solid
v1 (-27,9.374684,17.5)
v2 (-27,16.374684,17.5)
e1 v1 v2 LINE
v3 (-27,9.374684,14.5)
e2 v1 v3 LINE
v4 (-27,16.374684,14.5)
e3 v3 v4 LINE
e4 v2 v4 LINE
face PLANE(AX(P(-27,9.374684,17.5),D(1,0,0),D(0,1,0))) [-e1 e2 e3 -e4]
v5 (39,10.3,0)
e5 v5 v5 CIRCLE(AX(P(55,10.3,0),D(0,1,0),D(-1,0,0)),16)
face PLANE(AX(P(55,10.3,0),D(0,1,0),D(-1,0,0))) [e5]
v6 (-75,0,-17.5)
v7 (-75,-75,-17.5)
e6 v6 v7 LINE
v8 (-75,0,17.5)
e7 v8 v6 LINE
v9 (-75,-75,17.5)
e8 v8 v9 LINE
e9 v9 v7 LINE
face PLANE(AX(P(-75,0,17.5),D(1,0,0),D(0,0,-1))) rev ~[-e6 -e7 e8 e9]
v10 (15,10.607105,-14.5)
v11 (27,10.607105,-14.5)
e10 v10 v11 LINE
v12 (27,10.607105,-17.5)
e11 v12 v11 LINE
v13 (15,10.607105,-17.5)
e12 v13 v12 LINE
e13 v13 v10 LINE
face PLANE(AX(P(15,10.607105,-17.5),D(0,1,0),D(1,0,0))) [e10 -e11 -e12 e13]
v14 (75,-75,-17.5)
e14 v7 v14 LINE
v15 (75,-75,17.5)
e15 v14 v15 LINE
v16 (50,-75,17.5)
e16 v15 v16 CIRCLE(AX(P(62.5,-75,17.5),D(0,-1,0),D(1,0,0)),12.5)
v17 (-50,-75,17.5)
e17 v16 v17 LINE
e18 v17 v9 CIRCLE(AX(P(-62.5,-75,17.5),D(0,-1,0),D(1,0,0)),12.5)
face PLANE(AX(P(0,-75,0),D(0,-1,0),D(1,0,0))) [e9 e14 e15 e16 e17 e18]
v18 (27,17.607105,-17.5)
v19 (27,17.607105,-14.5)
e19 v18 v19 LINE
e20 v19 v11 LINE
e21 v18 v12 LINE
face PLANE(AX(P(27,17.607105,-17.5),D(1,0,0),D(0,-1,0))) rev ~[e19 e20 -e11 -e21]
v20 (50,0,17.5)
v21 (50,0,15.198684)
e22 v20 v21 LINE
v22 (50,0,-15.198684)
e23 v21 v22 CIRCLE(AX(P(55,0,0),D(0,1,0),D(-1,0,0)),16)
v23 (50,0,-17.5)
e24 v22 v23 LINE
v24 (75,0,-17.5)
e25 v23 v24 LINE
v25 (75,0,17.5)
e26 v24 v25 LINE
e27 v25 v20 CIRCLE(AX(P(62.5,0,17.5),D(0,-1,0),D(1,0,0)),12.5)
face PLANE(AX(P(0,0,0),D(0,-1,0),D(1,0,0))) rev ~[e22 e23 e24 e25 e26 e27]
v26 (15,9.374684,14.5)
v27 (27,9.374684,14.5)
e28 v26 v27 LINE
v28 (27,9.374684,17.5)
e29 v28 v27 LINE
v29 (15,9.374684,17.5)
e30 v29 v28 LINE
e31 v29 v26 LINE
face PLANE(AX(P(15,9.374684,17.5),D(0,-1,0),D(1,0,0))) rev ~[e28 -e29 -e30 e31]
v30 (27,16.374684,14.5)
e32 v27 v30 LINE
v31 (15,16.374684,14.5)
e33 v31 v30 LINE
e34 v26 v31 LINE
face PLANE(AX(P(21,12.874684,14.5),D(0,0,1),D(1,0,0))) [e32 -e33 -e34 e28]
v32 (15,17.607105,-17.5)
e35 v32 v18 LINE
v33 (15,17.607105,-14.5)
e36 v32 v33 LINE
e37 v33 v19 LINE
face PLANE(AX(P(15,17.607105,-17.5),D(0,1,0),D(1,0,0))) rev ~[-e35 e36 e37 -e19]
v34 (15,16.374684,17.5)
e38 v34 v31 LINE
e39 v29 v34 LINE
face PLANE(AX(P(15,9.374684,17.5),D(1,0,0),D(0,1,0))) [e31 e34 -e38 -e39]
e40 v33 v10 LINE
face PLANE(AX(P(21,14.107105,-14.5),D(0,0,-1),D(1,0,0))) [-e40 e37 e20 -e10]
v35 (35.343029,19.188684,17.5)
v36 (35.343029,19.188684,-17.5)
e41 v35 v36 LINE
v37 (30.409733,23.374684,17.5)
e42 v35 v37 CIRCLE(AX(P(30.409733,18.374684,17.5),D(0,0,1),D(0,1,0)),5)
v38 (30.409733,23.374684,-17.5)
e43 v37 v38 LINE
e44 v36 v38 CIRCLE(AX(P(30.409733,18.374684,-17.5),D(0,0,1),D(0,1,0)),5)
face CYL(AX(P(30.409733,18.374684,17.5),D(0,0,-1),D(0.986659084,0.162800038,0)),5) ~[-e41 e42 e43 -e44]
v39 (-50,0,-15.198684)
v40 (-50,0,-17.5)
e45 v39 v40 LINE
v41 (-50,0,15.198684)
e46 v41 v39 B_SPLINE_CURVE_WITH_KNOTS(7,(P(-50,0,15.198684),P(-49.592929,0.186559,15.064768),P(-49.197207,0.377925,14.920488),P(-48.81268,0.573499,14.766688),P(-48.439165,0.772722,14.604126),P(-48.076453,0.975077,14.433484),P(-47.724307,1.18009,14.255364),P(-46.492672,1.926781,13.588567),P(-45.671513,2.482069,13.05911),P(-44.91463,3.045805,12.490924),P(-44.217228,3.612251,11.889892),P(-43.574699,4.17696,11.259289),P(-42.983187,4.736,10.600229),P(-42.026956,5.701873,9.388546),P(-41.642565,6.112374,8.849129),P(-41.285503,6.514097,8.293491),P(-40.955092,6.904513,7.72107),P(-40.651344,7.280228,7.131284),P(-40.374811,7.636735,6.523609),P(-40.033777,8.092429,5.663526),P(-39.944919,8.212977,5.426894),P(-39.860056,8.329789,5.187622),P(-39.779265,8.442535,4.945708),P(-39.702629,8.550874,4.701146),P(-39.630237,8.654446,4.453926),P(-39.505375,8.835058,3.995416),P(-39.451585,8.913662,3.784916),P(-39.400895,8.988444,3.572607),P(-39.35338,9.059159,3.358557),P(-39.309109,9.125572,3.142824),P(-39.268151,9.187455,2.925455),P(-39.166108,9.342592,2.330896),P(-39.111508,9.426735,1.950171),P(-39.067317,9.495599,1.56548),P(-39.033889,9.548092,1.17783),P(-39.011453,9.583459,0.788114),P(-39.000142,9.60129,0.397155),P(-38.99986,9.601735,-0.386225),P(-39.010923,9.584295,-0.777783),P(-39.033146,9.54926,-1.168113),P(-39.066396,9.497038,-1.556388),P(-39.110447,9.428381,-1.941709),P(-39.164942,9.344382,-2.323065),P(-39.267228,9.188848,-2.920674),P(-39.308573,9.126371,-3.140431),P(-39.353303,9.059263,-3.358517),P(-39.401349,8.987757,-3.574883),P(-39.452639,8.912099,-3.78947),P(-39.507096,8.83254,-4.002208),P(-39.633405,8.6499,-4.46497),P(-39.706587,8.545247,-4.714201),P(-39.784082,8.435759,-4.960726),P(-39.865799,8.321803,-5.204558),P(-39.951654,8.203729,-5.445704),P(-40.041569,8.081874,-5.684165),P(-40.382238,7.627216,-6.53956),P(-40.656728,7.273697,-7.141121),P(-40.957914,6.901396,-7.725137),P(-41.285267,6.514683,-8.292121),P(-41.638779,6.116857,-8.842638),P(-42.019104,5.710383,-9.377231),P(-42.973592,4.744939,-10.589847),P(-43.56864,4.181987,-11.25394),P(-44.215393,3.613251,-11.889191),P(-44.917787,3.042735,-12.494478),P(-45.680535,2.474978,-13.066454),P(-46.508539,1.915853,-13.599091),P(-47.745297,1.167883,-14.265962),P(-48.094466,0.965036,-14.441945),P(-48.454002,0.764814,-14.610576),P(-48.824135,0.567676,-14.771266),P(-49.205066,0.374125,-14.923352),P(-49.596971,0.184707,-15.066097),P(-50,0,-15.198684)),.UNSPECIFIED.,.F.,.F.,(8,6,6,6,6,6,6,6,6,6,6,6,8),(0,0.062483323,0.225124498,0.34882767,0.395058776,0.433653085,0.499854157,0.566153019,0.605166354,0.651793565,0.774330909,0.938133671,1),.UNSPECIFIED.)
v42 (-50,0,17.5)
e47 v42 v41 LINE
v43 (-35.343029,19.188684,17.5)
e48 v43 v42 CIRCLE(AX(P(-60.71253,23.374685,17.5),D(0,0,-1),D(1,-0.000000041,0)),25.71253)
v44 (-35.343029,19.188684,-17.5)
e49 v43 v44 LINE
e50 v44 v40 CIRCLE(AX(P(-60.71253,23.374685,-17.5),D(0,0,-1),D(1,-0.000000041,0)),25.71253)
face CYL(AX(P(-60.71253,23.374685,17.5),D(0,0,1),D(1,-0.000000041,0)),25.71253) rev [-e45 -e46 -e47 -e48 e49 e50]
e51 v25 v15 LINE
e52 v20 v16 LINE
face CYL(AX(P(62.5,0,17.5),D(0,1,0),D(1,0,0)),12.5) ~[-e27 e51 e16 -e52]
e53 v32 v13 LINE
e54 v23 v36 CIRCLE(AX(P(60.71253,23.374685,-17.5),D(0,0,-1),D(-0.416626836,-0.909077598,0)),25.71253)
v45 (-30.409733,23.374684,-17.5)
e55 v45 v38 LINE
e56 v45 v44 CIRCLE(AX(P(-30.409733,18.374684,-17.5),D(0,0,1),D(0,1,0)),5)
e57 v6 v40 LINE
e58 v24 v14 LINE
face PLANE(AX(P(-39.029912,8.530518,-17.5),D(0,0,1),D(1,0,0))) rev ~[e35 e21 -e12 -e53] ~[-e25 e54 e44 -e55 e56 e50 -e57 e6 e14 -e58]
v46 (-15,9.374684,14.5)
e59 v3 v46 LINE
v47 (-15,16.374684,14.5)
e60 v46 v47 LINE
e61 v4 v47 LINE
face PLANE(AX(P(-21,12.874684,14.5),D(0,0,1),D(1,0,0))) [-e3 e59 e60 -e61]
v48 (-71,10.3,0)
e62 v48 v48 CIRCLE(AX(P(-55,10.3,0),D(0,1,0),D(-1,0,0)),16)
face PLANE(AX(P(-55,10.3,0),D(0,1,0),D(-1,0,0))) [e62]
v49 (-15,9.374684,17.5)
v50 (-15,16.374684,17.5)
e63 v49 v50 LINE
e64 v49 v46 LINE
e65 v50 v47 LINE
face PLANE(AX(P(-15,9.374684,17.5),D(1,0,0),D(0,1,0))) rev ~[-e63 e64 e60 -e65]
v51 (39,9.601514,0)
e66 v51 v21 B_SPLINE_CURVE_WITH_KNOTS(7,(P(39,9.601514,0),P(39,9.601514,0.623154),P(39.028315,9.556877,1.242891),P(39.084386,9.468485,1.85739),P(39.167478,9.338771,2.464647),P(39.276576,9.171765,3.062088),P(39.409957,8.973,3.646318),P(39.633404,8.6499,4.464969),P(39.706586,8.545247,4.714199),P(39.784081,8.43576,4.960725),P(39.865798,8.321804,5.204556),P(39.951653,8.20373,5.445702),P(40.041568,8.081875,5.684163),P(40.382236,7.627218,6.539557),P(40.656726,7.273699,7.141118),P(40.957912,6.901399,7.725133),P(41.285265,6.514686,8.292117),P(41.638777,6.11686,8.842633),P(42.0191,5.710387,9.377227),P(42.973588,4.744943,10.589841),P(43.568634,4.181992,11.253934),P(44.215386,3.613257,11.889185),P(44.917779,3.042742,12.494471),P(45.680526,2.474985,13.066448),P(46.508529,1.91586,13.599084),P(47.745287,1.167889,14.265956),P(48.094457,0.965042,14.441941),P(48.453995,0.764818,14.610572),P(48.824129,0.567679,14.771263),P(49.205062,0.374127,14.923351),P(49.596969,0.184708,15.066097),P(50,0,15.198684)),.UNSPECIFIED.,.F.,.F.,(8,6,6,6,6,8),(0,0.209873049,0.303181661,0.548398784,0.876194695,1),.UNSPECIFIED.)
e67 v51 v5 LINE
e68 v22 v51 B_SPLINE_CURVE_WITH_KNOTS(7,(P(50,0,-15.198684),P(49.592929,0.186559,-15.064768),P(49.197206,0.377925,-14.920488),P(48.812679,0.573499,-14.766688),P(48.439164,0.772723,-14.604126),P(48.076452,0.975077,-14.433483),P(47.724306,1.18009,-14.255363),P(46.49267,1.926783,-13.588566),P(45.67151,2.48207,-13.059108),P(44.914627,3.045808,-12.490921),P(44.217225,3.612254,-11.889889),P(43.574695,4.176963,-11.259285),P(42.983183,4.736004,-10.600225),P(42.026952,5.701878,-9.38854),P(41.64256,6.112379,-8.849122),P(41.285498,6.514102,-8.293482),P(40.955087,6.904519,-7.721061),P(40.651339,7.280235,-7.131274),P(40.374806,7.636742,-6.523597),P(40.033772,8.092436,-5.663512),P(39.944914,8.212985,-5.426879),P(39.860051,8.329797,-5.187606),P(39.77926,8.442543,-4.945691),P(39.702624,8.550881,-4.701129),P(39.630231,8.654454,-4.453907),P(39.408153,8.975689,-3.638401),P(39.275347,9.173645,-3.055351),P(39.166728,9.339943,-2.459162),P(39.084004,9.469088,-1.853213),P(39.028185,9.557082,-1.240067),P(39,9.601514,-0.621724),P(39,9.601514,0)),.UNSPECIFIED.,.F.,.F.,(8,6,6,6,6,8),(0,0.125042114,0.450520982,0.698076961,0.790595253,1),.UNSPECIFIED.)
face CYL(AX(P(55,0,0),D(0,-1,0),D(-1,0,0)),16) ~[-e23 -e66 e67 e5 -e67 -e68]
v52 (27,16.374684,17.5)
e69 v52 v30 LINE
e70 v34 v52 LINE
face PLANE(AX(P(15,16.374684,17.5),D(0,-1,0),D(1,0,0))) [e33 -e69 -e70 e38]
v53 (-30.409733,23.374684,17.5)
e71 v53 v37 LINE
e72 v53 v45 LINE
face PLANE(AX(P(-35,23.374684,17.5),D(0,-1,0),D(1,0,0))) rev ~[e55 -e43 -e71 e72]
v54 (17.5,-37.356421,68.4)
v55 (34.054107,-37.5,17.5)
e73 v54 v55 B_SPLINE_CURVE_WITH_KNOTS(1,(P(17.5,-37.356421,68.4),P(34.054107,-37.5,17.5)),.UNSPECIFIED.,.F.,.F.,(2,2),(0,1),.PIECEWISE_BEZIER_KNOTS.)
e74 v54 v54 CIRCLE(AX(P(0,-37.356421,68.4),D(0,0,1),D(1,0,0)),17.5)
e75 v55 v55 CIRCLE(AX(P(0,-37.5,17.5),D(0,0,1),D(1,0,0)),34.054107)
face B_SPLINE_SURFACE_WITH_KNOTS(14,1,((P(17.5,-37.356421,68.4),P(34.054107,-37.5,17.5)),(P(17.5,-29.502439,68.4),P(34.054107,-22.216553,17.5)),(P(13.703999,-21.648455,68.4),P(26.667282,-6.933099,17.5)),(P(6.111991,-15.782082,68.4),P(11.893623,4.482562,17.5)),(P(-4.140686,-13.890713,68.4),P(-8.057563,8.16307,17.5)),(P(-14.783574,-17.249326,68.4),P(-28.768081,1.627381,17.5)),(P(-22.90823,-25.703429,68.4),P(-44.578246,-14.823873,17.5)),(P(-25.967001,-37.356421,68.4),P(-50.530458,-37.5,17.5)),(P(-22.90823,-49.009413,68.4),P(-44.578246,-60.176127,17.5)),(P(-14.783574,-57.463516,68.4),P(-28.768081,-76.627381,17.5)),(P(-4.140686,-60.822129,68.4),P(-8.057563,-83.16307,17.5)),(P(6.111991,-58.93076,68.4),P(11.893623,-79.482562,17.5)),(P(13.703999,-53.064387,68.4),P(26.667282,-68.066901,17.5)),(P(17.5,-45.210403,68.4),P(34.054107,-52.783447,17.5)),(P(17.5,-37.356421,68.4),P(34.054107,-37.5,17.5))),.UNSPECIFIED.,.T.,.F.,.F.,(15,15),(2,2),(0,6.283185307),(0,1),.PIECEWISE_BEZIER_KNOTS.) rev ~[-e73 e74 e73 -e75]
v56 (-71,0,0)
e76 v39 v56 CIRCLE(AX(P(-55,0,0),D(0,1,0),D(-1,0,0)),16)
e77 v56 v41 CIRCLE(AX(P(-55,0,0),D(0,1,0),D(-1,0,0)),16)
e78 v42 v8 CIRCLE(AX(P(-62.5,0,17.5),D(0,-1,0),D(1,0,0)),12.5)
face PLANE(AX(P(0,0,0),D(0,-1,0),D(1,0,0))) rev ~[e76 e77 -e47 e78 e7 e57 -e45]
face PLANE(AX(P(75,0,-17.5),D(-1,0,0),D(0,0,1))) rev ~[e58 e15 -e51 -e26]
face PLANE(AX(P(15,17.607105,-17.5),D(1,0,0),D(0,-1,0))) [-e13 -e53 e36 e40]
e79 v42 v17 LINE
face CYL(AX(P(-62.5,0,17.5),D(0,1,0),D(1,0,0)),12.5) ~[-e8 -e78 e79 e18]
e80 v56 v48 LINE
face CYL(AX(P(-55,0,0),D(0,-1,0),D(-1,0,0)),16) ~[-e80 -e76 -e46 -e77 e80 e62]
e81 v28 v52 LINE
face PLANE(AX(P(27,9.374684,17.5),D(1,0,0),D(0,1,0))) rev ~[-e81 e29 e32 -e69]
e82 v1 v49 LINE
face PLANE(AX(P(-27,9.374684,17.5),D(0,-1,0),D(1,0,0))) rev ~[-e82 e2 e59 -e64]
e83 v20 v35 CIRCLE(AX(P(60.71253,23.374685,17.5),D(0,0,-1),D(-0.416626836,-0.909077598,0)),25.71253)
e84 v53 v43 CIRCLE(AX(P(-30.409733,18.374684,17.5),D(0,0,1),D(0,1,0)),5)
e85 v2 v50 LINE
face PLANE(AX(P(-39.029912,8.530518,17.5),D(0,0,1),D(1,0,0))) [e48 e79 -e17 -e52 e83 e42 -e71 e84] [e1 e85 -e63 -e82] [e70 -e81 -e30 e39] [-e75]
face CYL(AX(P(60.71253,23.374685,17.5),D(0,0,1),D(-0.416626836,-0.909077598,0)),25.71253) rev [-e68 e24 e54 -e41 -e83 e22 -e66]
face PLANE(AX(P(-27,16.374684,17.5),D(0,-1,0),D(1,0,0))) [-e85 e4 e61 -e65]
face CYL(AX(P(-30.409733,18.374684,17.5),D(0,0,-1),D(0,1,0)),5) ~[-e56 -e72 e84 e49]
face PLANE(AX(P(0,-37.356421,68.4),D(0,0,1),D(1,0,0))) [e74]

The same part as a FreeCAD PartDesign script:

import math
import FreeCAD as App
import Part
import Sketcher

V = App.Vector


def edges_at(feature, points):
    """Names of the edges that pass closest to the given points."""
    edges = feature.Shape.Edges
    near = lambda p: min(range(len(edges)), key=lambda i: edges[i].distToShape(Part.Vertex(*p))[0])
    return sorted({f"Edge{near(p) + 1}" for p in points})


def add_polygon(sketch, points):
    """Adds a closed chain of lines whose ends are joined by coincident constraints."""
    first, n = sketch.GeometryCount, len(points)
    for a, b in zip(points, points[1:] + points[:1]):
        sketch.addGeometry(Part.LineSegment(App.Vector(*a, 0), App.Vector(*b, 0)), False)
    for i in range(n):
        sketch.addConstraint(Sketcher.Constraint("Coincident", first + i, 2, first + (i + 1) % n, 1))

doc = App.newDocument("Part")
body = doc.addObject("PartDesign::Body", "Body")

sketch1 = body.newObject("Sketcher::SketchObject", "Sketch")
sketch1.AttachmentSupport = (doc.getObject("XZ_Plane"), [""])
sketch1.MapMode = "FlatFace"
sketch1.addGeometry(Part.LineSegment(V(75, -17.5, 0), V(75, 17.5, 0)), False)
sketch1.addGeometry(Part.ArcOfCircle(Part.Circle(V(62.5, 17.5, 0), V(0, 0, 1), 12.5), math.radians(0), math.radians(180)), False)
sketch1.addGeometry(Part.LineSegment(V(50, 17.5, 0), V(-50, 17.5, 0)), False)
sketch1.addGeometry(Part.ArcOfCircle(Part.Circle(V(-62.5, 17.5, 0), V(0, 0, 1), 12.5), math.radians(0), math.radians(180)), False)
sketch1.addGeometry(Part.LineSegment(V(-75, 17.5, 0), V(-75, -17.5, 0)), False)
sketch1.addGeometry(Part.LineSegment(V(-75, -17.5, 0), V(75, -17.5, 0)), False)
sketch1.addConstraint(Sketcher.Constraint("Tangent", 0, 2, 1, 1))
sketch1.addConstraint(Sketcher.Constraint("Coincident", 1, 2, 2, 1))
sketch1.addConstraint(Sketcher.Constraint("Coincident", 2, 2, 3, 1))
sketch1.addConstraint(Sketcher.Constraint("Tangent", 3, 2, 4, 1))
sketch1.addConstraint(Sketcher.Constraint("Coincident", 4, 2, 5, 1))
sketch1.addConstraint(Sketcher.Constraint("Coincident", 5, 2, 0, 1))
sketch1.addConstraint(Sketcher.Constraint("Vertical", 0))
sketch1.addConstraint(Sketcher.Constraint("Horizontal", 2))
sketch1.addConstraint(Sketcher.Constraint("Vertical", 4))
sketch1.addConstraint(Sketcher.Constraint("Horizontal", 5))
sketch1.addConstraint(Sketcher.Constraint("Equal", 1, 3))
sketch1.addConstraint(Sketcher.Constraint("Symmetric", 0, 2, 4, 2, -1, 1))
sketch1.addConstraint(Sketcher.Constraint("Horizontal", 1, 3, 3, 3))
sketch1.addConstraint(Sketcher.Constraint("Horizontal", 0, 2, 1, 2))
sketch1.addConstraint(Sketcher.Constraint("Radius", 1, 12.5))
sketch1.addConstraint(Sketcher.Constraint("DistanceX", 2, 2, 2, 1, 100.0))
sketch1.addConstraint(Sketcher.Constraint("DistanceY", 0, 1, 0, 2, 35.0))
pad1 = body.newObject("PartDesign::Pad", "Pad")
pad1.Profile = sketch1
pad1.Length = 75

sketch2 = body.newObject("Sketcher::SketchObject", "Sketch001")
sketch2.AttachmentSupport = (doc.getObject("XY_Plane"), [""])
sketch2.MapMode = "FlatFace"
sketch2.AttachmentOffset = App.Placement(V(0, 0, 17.5), App.Rotation())
sketch2.addGeometry(Part.Circle(V(0, -37.356421, 0), V(0, 0, 1), 3.442956), False)
sketch2.addConstraint(Sketcher.Constraint("PointOnObject", 0, 3, -2))
sketch2.addConstraint(Sketcher.Constraint("Diameter", 0, 6.885912))
sketch2.addConstraint(Sketcher.Constraint("DistanceY", 0, 3, -1, 1, 37.356421))
pad2 = body.newObject("PartDesign::Pad", "Pad001")
pad2.Profile = sketch2
pad2.Length = 49.9

sketch3 = body.newObject("Sketcher::SketchObject", "Sketch002")
sketch3.AttachmentSupport = (doc.getObject("XY_Plane"), [""])
sketch3.MapMode = "FlatFace"
sketch3.AttachmentOffset = App.Placement(V(0, 0, 67.4), App.Rotation())
sketch3.addGeometry(Part.Circle(V(0, -37.356421, 0), V(0, 0, 1), 17.5), False)
sketch3.addConstraint(Sketcher.Constraint("PointOnObject", 0, 3, -2))
sketch3.addConstraint(Sketcher.Constraint("Diameter", 0, 35.0))
sketch3.addConstraint(Sketcher.Constraint("DistanceY", 0, 3, -1, 1, 37.356421))
pad3 = body.newObject("PartDesign::Pad", "Pad002")
pad3.Profile = sketch3
pad3.Length = 1

sketch4 = body.newObject("Sketcher::SketchObject", "Sketch003")
sketch4.AttachmentSupport = (doc.getObject("XY_Plane"), [""])
sketch4.MapMode = "FlatFace"
sketch4.AttachmentOffset = App.Placement(V(0, 0, 68.4), App.Rotation())
sketch4.addGeometry(Part.Circle(V(0, -37.356421, 0), V(0, 0, 1), 17.5), False)
sketch4.addConstraint(Sketcher.Constraint("PointOnObject", 0, 3, -2))
sketch4.addConstraint(Sketcher.Constraint("Diameter", 0, 35.0))
sketch4.addConstraint(Sketcher.Constraint("DistanceY", 0, 3, -1, 1, 37.356421))

sketch5 = body.newObject("Sketcher::SketchObject", "Sketch004")
sketch5.AttachmentSupport = (doc.getObject("XY_Plane"), [""])
sketch5.MapMode = "FlatFace"
sketch5.AttachmentOffset = App.Placement(V(0, 0, 17.5), App.Rotation())
sketch5.addGeometry(Part.Circle(V(0, -37.5, 0), V(0, 0, 1), 34.054107), False)
sketch5.addConstraint(Sketcher.Constraint("PointOnObject", 0, 3, -2))
sketch5.addConstraint(Sketcher.Constraint("DistanceY", 0, 3, -1, 1, 37.5))
sketch5.addConstraint(Sketcher.Constraint("Diameter", 0, 68.108214))

additiveloft = body.newObject("PartDesign::AdditiveLoft", "AdditiveLoft")
additiveloft.Profile = sketch4
additiveloft.Sections = [sketch5]

sketch6 = body.newObject("Sketcher::SketchObject", "Sketch005")
sketch6.AttachmentSupport = (doc.getObject("XY_Plane"), [""])
sketch6.MapMode = "FlatFace"
sketch6.AttachmentOffset = App.Placement(V(0, 0, 17.5), App.Rotation())
add_polygon(sketch6, [(-35, 0), (-35, -2.474772), (35, -2.474772), (35, 0)])
sketch6.addGeometry(Part.LineSegment(V(-50, 0, 0), V(50, 0, 0)), False)
sketch6.addGeometry(Part.ArcOfCircle(Part.Circle(V(60.71253, 23.374685, 0), V(0, 0, 1), 25.71253), math.radians(-179.999998), math.radians(-114.621808)), False)
sketch6.addGeometry(Part.LineSegment(V(35, 23.374684, 0), V(-35, 23.374684, 0)), False)
sketch6.addGeometry(Part.ArcOfCircle(Part.Circle(V(-60.71253, 23.374685, 0), V(0, 0, 1), 25.71253), math.radians(-65.378192), math.radians(-0.000002)), False)
sketch6.addConstraint(Sketcher.Constraint("Coincident", 4, 2, 5, 2))
sketch6.addConstraint(Sketcher.Constraint("Coincident", 5, 1, 6, 1))
sketch6.addConstraint(Sketcher.Constraint("Coincident", 6, 2, 7, 2))
sketch6.addConstraint(Sketcher.Constraint("Coincident", 7, 1, 4, 1))
sketch6.addConstraint(Sketcher.Constraint("Vertical", 0))
sketch6.addConstraint(Sketcher.Constraint("Horizontal", 1))
sketch6.addConstraint(Sketcher.Constraint("Vertical", 2))
sketch6.addConstraint(Sketcher.Constraint("Horizontal", 3))
sketch6.addConstraint(Sketcher.Constraint("Horizontal", 4))
sketch6.addConstraint(Sketcher.Constraint("Horizontal", 6))
sketch6.addConstraint(Sketcher.Constraint("Equal", 5, 7))
sketch6.addConstraint(Sketcher.Constraint("Symmetric", 2, 2, 3, 2, -1, 1))
sketch6.addConstraint(Sketcher.Constraint("Symmetric", 4, 2, 7, 1, -1, 1))
sketch6.addConstraint(Sketcher.Constraint("Horizontal", 5, 3, 7, 3))
sketch6.addConstraint(Sketcher.Constraint("Horizontal", 7, 3, 5, 1))
sketch6.addConstraint(Sketcher.Constraint("Vertical", 2, 2, 5, 1))
sketch6.addConstraint(Sketcher.Constraint("DistanceX", 1, 1, 1, 2, 70.0))
sketch6.addConstraint(Sketcher.Constraint("DistanceX", 4, 1, 4, 2, 100.0))
sketch6.addConstraint(Sketcher.Constraint("Radius", 5, 25.71253))
sketch6.addConstraint(Sketcher.Constraint("DistanceY", 0, 2, 0, 1, 2.474771))
pad4 = body.newObject("PartDesign::Pad", "Pad003")
pad4.Profile = sketch6
pad4.Length = 35
pad4.Reversed = True
doc.recompute()

fillet = body.newObject("PartDesign::Fillet", "Fillet")
fillet.Base = (pad4, edges_at(pad4, [(35, 23.375, 0), (-35, 23.375, 0)]))
fillet.Radius = 5

sketch7 = body.newObject("Sketcher::SketchObject", "Sketch006")
sketch7.AttachmentSupport = (doc.getObject("XZ_Plane"), [""])
sketch7.MapMode = "FlatFace"
sketch7.addGeometry(Part.Circle(V(55, 0, 0), V(0, 0, 1), 16), False)
sketch7.addGeometry(Part.Circle(V(-55, 0, 0), V(0, 0, 1), 16), False)
sketch7.addConstraint(Sketcher.Constraint("Equal", 0, 1))
sketch7.addConstraint(Sketcher.Constraint("Symmetric", 0, 3, 1, 3, -1, 1))
sketch7.addConstraint(Sketcher.Constraint("PointOnObject", 0, 3, -1))
sketch7.addConstraint(Sketcher.Constraint("Diameter", 0, 32.0))
sketch7.addConstraint(Sketcher.Constraint("DistanceX", -1, 1, 0, 3, 55.0))
pad5 = body.newObject("PartDesign::Pad", "Pad004")
pad5.Profile = sketch7
pad5.Length = 10.3
pad5.Reversed = True

sketch8 = body.newObject("Sketcher::SketchObject", "Sketch007")
sketch8.AttachmentSupport = (doc.getObject("XY_Plane"), [""])
sketch8.MapMode = "FlatFace"
sketch8.AttachmentOffset = App.Placement(V(0, 0, 17.5), App.Rotation())
add_polygon(sketch8, [(15, 16.374684), (15, 9.374684), (27, 9.374684), (27, 16.374684)])
add_polygon(sketch8, [(-27, 16.374684), (-27, 9.374684), (-15, 9.374684), (-15, 16.374684)])
sketch8.addConstraint(Sketcher.Constraint("Vertical", 0))
sketch8.addConstraint(Sketcher.Constraint("Horizontal", 1))
sketch8.addConstraint(Sketcher.Constraint("Vertical", 2))
sketch8.addConstraint(Sketcher.Constraint("Horizontal", 3))
sketch8.addConstraint(Sketcher.Constraint("Vertical", 4))
sketch8.addConstraint(Sketcher.Constraint("Horizontal", 5))
sketch8.addConstraint(Sketcher.Constraint("Vertical", 6))
sketch8.addConstraint(Sketcher.Constraint("Horizontal", 7))
sketch8.addConstraint(Sketcher.Constraint("Symmetric", 1, 2, 4, 2, -2))
sketch8.addConstraint(Sketcher.Constraint("Symmetric", 3, 2, 6, 2, -2))
sketch8.addConstraint(Sketcher.Constraint("DistanceX", 1, 1, 1, 2, 12.0))
sketch8.addConstraint(Sketcher.Constraint("DistanceY", 0, 2, 0, 1, 7.0))
sketch8.addConstraint(Sketcher.Constraint("DistanceX", -1, 1, 0, 2, 15.0))
sketch8.addConstraint(Sketcher.Constraint("DistanceY", -1, 1, 0, 2, 9.374684))
pocket1 = body.newObject("PartDesign::Pocket", "Pocket")
pocket1.Profile = sketch8
pocket1.Length = 3

sketch9 = body.newObject("Sketcher::SketchObject", "Sketch008")
sketch9.AttachmentSupport = (doc.getObject("XY_Plane"), [""])
sketch9.MapMode = "FlatFace"
sketch9.AttachmentOffset = App.Placement(V(0, 0, -17.5), App.Rotation())
add_polygon(sketch9, [(15, 10.607105), (15, 17.607105), (27, 17.607105), (27, 10.607105)])
sketch9.addConstraint(Sketcher.Constraint("Vertical", 0))
sketch9.addConstraint(Sketcher.Constraint("Horizontal", 1))
sketch9.addConstraint(Sketcher.Constraint("Vertical", 2))
sketch9.addConstraint(Sketcher.Constraint("Horizontal", 3))
sketch9.addConstraint(Sketcher.Constraint("DistanceX", 1, 1, 1, 2, 12.0))
sketch9.addConstraint(Sketcher.Constraint("DistanceY", 0, 1, 0, 2, 7.0))
sketch9.addConstraint(Sketcher.Constraint("DistanceX", -1, 1, 0, 2, 15.0))
sketch9.addConstraint(Sketcher.Constraint("DistanceY", -1, 1, 0, 2, 17.607105))
pocket2 = body.newObject("PartDesign::Pocket", "Pocket001")
pocket2.Profile = sketch9
pocket2.Length = 3
pocket2.Reversed = True

doc.recompute()
